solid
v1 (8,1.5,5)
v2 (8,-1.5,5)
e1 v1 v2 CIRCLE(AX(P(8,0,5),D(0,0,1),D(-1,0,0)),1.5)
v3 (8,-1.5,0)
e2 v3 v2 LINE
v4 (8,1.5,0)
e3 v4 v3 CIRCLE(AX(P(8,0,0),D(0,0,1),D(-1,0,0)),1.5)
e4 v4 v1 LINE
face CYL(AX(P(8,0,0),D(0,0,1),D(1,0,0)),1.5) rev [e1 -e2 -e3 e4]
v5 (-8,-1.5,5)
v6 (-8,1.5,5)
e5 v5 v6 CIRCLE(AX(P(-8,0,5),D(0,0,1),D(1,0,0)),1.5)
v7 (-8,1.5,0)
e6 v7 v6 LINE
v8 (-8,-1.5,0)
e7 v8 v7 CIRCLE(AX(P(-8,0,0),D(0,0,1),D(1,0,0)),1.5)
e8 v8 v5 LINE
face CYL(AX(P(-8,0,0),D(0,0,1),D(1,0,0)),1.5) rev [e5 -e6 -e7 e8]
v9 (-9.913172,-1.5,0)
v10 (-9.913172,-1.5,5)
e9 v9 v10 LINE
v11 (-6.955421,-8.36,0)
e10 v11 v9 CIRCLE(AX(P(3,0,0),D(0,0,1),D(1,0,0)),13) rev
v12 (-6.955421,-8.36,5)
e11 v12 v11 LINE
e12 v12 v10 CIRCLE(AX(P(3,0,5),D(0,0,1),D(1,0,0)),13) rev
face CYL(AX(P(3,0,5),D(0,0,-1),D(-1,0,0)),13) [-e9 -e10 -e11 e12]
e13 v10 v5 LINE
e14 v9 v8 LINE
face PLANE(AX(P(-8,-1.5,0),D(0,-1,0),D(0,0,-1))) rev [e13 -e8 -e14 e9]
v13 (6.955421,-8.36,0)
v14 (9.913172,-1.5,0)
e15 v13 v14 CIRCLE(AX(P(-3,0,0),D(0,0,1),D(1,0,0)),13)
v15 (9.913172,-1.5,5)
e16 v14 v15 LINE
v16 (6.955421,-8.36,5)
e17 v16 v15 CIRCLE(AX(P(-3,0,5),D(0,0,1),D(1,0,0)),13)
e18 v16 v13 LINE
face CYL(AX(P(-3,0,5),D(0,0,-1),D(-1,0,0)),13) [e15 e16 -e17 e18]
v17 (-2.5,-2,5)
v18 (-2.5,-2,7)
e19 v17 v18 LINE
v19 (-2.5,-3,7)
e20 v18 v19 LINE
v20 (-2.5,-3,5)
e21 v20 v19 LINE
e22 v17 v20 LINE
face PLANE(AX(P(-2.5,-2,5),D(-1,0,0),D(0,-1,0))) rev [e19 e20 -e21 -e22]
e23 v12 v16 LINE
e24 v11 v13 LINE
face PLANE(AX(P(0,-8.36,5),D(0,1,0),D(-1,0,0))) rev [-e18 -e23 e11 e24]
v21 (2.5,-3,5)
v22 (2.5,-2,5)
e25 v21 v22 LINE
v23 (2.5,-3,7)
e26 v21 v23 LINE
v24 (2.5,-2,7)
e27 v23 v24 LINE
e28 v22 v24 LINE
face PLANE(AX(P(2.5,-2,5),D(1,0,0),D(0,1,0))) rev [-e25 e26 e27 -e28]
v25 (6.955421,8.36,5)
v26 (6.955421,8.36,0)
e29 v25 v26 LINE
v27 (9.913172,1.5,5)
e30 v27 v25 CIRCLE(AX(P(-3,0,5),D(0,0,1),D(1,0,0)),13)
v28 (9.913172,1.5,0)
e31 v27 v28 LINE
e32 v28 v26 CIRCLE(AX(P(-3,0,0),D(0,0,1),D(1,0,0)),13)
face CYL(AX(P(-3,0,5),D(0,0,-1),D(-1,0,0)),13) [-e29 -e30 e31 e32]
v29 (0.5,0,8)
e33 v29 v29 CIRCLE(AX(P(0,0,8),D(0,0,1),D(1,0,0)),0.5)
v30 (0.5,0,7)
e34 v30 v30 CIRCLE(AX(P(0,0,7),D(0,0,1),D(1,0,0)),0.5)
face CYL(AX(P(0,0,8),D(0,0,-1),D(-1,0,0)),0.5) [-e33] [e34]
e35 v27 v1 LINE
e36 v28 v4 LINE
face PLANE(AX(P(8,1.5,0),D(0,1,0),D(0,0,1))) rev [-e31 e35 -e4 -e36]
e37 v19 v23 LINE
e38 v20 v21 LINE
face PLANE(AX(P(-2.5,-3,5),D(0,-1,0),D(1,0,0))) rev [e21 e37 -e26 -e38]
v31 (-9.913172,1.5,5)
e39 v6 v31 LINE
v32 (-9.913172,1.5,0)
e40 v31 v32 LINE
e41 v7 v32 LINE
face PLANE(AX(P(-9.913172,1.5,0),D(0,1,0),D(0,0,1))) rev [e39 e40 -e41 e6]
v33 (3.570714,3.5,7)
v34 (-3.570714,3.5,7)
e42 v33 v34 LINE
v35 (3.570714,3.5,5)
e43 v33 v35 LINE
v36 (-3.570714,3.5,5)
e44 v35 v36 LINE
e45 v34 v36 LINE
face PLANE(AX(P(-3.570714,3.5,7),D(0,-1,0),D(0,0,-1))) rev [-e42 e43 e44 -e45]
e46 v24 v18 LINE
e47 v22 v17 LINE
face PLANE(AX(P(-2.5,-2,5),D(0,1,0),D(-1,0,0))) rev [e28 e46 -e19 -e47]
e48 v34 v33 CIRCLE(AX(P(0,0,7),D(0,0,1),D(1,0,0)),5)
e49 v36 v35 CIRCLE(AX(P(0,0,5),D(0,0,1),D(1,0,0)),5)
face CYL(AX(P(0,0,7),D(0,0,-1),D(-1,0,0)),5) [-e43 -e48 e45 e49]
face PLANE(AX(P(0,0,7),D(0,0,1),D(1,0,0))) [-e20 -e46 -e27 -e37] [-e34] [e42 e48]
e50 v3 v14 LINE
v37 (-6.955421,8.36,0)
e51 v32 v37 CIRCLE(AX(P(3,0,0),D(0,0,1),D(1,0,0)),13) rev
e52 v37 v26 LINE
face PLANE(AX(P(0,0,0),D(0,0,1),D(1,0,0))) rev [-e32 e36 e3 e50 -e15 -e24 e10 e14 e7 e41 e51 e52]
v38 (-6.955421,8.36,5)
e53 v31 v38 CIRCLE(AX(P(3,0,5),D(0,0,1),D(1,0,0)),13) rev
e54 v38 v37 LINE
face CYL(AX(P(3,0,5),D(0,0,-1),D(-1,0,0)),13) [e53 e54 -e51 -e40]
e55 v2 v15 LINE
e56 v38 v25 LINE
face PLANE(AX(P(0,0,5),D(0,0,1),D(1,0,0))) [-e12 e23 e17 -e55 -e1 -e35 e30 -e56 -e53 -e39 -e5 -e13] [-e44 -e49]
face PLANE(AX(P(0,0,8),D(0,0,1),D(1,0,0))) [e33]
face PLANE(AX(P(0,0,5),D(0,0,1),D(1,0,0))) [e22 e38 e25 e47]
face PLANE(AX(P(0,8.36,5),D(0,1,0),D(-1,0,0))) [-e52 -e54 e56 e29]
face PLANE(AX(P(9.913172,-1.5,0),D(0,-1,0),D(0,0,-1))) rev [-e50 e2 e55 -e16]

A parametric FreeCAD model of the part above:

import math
import FreeCAD as App
import Part
import Sketcher
from FreeCAD import Vector

doc = App.newDocument("Part")
body = doc.addObject("PartDesign::Body", "Body")

sketch1 = doc.addObject("Sketcher::SketchObject", "Sketch")
body.addObject(sketch1)
sketch1.AttachmentSupport = (doc.XY_Plane, [""])
sketch1.MapMode = "FlatFace"
sketch1.addGeometry([
    Part.ArcOfCircle(Part.Circle(Vector(3, 0, 0), Vector(0, 0, 1), 13), math.radians(139.978358), math.radians(180)),
    Part.ArcOfCircle(Part.Circle(Vector(3, 0, 0), Vector(0, 0, 1), 13), math.radians(-180), math.radians(-139.978358)),
    Part.LineSegment(Vector(-6.955421, -8.36, 0), Vector(6.955421, -8.36, 0)),
    Part.ArcOfCircle(Part.Circle(Vector(-3, 0, 0), Vector(0, 0, 1), 13), math.radians(-40.021642), math.radians(0)),
    Part.ArcOfCircle(Part.Circle(Vector(-3, 0, 0), Vector(0, 0, 1), 13), math.radians(0), math.radians(40.021642)),
    Part.LineSegment(Vector(6.955421, 8.36, 0), Vector(-6.955421, 8.36, 0)),
], False)
sketch1.addConstraint([
    Sketcher.Constraint("Tangent", 0, 2, 1, 1),
    Sketcher.Constraint("Coincident", 1, 2, 2, 1),
    Sketcher.Constraint("Coincident", 2, 2, 3, 1),
    Sketcher.Constraint("Tangent", 3, 2, 4, 1),
    Sketcher.Constraint("Coincident", 4, 2, 5, 1),
    Sketcher.Constraint("Coincident", 5, 2, 0, 1),
    Sketcher.Constraint("Horizontal", 2),
    Sketcher.Constraint("Horizontal", 5),
    Sketcher.Constraint("Equal", 0, 1),
    Sketcher.Constraint("Equal", 1, 3),
    Sketcher.Constraint("Equal", 3, 4),
    Sketcher.Constraint("Symmetric", 0, 3, 3, 3, -1, 1),
    Sketcher.Constraint("Symmetric", 2, 2, 4, 2, -1),
    Sketcher.Constraint("PointOnObject", 0, 2, -1),
    Sketcher.Constraint("PointOnObject", 3, 2, -1),
    Sketcher.Constraint("Radius", 0, 13.0),
    Sketcher.Constraint("DistanceX", -1, 1, 0, 3, 3.0),
    Sketcher.Constraint("DistanceY", 1, 2, -1, 1, 8.36),
])
pad1 = doc.addObject("PartDesign::Pad", "Pad")
body.addObject(pad1)
pad1.Profile = sketch1
pad1.Length = 5

sketch2 = doc.addObject("Sketcher::SketchObject", "Sketch001")
body.addObject(sketch2)
sketch2.AttachmentSupport = (doc.XY_Plane, [""])
sketch2.MapMode = "FlatFace"
sketch2.AttachmentOffset = App.Placement(Vector(0, 0, 5), App.Rotation())
sketch2.addGeometry([
    Part.LineSegment(Vector(-8, 1.5, 0), Vector(-10.31713, 1.5, 0)),
    Part.ArcOfCircle(Part.Circle(Vector(0, 0, 0), Vector(0, 0, 1), 10.425602), math.radians(171.72777), math.radians(188.27223)),
    Part.LineSegment(Vector(-10.31713, -1.5, 0), Vector(-8, -1.5, 0)),
    Part.ArcOfCircle(Part.Circle(Vector(-8, 0, 0), Vector(0, 0, 1), 1.5), math.radians(-90), math.radians(90)),
    Part.LineSegment(Vector(8, -1.5, 0), Vector(10.31713, -1.5, 0)),
    Part.ArcOfCircle(Part.Circle(Vector(0, 0, 0), Vector(0, 0, 1), 10.425602), math.radians(-8.27223), math.radians(8.27223)),
    Part.LineSegment(Vector(10.31713, 1.5, 0), Vector(8, 1.5, 0)),
    Part.ArcOfCircle(Part.Circle(Vector(8, 0, 0), Vector(0, 0, 1), 1.5), math.radians(90), math.radians(270)),
], False)
sketch2.addConstraint([
    Sketcher.Constraint("Coincident", 0, 2, 1, 1),
    Sketcher.Constraint("Coincident", 1, 2, 2, 1),
    Sketcher.Constraint("Tangent", 2, 2, 3, 1),
    Sketcher.Constraint("Tangent", 3, 2, 0, 1),
    Sketcher.Constraint("Coincident", 4, 2, 5, 1),
    Sketcher.Constraint("Coincident", 5, 2, 6, 1),
    Sketcher.Constraint("Tangent", 6, 2, 7, 1),
    Sketcher.Constraint("Tangent", 7, 2, 4, 1),
    Sketcher.Constraint("Horizontal", 0),
    Sketcher.Constraint("Horizontal", 2),
    Sketcher.Constraint("Horizontal", 4),
    Sketcher.Constraint("Horizontal", 6),
    Sketcher.Constraint("Coincident", 1, 3, -1, 1),
    Sketcher.Constraint("Coincident", 5, 3, -1, 1),
    Sketcher.Constraint("Equal", 1, 5),
    Sketcher.Constraint("Equal", 3, 7),
    Sketcher.Constraint("Symmetric", 3, 3, 7, 3, -1, 1),
    Sketcher.Constraint("PointOnObject", 3, 3, -1),
    Sketcher.Constraint("Radius", 3, 1.5),
    Sketcher.Constraint("DistanceX", 3, 3, -1, 1, 8.0),
    Sketcher.Constraint("Radius", 1, 10.425602),
])
pocket1 = doc.addObject("PartDesign::Pocket", "Pocket")
body.addObject(pocket1)
pocket1.Profile = sketch2
pocket1.Length = 5

sketch3 = doc.addObject("Sketcher::SketchObject", "Sketch002")
body.addObject(sketch3)
sketch3.AttachmentSupport = (doc.XY_Plane, [""])
sketch3.MapMode = "FlatFace"
sketch3.AttachmentOffset = App.Placement(Vector(0, 0, 5), App.Rotation())
sketch3.addGeometry(Part.Circle(Vector(0, 0, 0), Vector(0, 0, 1), 0.5), False)
sketch3.addConstraint([
    Sketcher.Constraint("Coincident", 0, 3, -1, 1),
    Sketcher.Constraint("Diameter", 0, 1.0),
])
pad2 = doc.addObject("PartDesign::Pad", "Pad001")
body.addObject(pad2)
pad2.Profile = sketch3
pad2.Length = 3

sketch4 = doc.addObject("Sketcher::SketchObject", "Sketch003")
body.addObject(sketch4)
sketch4.AttachmentSupport = (doc.XY_Plane, [""])
sketch4.MapMode = "FlatFace"
sketch4.AttachmentOffset = App.Placement(Vector(0, 0, 5), App.Rotation())
sketch4.addGeometry([
    Part.LineSegment(Vector(3.570714, 3.5, 0), Vector(-3.570714, 3.5, 0)),
    Part.ArcOfCircle(Part.Circle(Vector(0, 0, 0), Vector(0, 0, 1), 5), math.radians(135.572996), math.radians(404.427004)),
], False)
sketch4.addConstraint([
    Sketcher.Constraint("Coincident", 0, 1, 1, 2),
    Sketcher.Constraint("Coincident", 1, 1, 0, 2),
    Sketcher.Constraint("Horizontal", 0),
    Sketcher.Constraint("Coincident", 1, 3, -1, 1),
    Sketcher.Constraint("Radius", 1, 5.0),
    Sketcher.Constraint("DistanceY", -1, 1, 0, 1, 3.5),
])
pad3 = doc.addObject("PartDesign::Pad", "Pad002")
body.addObject(pad3)
pad3.Profile = sketch4
pad3.Length = 2

sketch5 = doc.addObject("Sketcher::SketchObject", "Sketch004")
body.addObject(sketch5)
sketch5.AttachmentSupport = (doc.XY_Plane, [""])
sketch5.MapMode = "FlatFace"
sketch5.AttachmentOffset = App.Placement(Vector(0, 0, 7), App.Rotation())
sketch5.addGeometry([
    Part.LineSegment(Vector(-2.5, -2, 0), Vector(-2.5, -3, 0)),
    Part.LineSegment(Vector(-2.5, -3, 0), Vector(2.5, -3, 0)),
    Part.LineSegment(Vector(2.5, -3, 0), Vector(2.5, -2, 0)),
    Part.LineSegment(Vector(2.5, -2, 0), Vector(-2.5, -2, 0)),
], False)
sketch5.addConstraint([
    Sketcher.Constraint("Coincident", 0, 2, 1, 1),
    Sketcher.Constraint("Coincident", 1, 2, 2, 1),
    Sketcher.Constraint("Coincident", 2, 2, 3, 1),
    Sketcher.Constraint("Coincident", 3, 2, 0, 1),
    Sketcher.Constraint("Vertical", 0),
    Sketcher.Constraint("Horizontal", 1),
    Sketcher.Constraint("Vertical", 2),
    Sketcher.Constraint("Horizontal", 3),
    Sketcher.Constraint("DistanceX", 1, 1, 1, 2, 5.0),
    Sketcher.Constraint("DistanceY", 0, 2, 0, 1, 1.0),
    Sketcher.Constraint("DistanceY", 0, 2, -1, 1, 3.0),
    Sketcher.Constraint("DistanceX", 0, 2, -1, 1, 2.5),
])
pocket2 = doc.addObject("PartDesign::Pocket", "Pocket001")
body.addObject(pocket2)
pocket2.Profile = sketch5
pocket2.Length = 2

doc.recompute()
